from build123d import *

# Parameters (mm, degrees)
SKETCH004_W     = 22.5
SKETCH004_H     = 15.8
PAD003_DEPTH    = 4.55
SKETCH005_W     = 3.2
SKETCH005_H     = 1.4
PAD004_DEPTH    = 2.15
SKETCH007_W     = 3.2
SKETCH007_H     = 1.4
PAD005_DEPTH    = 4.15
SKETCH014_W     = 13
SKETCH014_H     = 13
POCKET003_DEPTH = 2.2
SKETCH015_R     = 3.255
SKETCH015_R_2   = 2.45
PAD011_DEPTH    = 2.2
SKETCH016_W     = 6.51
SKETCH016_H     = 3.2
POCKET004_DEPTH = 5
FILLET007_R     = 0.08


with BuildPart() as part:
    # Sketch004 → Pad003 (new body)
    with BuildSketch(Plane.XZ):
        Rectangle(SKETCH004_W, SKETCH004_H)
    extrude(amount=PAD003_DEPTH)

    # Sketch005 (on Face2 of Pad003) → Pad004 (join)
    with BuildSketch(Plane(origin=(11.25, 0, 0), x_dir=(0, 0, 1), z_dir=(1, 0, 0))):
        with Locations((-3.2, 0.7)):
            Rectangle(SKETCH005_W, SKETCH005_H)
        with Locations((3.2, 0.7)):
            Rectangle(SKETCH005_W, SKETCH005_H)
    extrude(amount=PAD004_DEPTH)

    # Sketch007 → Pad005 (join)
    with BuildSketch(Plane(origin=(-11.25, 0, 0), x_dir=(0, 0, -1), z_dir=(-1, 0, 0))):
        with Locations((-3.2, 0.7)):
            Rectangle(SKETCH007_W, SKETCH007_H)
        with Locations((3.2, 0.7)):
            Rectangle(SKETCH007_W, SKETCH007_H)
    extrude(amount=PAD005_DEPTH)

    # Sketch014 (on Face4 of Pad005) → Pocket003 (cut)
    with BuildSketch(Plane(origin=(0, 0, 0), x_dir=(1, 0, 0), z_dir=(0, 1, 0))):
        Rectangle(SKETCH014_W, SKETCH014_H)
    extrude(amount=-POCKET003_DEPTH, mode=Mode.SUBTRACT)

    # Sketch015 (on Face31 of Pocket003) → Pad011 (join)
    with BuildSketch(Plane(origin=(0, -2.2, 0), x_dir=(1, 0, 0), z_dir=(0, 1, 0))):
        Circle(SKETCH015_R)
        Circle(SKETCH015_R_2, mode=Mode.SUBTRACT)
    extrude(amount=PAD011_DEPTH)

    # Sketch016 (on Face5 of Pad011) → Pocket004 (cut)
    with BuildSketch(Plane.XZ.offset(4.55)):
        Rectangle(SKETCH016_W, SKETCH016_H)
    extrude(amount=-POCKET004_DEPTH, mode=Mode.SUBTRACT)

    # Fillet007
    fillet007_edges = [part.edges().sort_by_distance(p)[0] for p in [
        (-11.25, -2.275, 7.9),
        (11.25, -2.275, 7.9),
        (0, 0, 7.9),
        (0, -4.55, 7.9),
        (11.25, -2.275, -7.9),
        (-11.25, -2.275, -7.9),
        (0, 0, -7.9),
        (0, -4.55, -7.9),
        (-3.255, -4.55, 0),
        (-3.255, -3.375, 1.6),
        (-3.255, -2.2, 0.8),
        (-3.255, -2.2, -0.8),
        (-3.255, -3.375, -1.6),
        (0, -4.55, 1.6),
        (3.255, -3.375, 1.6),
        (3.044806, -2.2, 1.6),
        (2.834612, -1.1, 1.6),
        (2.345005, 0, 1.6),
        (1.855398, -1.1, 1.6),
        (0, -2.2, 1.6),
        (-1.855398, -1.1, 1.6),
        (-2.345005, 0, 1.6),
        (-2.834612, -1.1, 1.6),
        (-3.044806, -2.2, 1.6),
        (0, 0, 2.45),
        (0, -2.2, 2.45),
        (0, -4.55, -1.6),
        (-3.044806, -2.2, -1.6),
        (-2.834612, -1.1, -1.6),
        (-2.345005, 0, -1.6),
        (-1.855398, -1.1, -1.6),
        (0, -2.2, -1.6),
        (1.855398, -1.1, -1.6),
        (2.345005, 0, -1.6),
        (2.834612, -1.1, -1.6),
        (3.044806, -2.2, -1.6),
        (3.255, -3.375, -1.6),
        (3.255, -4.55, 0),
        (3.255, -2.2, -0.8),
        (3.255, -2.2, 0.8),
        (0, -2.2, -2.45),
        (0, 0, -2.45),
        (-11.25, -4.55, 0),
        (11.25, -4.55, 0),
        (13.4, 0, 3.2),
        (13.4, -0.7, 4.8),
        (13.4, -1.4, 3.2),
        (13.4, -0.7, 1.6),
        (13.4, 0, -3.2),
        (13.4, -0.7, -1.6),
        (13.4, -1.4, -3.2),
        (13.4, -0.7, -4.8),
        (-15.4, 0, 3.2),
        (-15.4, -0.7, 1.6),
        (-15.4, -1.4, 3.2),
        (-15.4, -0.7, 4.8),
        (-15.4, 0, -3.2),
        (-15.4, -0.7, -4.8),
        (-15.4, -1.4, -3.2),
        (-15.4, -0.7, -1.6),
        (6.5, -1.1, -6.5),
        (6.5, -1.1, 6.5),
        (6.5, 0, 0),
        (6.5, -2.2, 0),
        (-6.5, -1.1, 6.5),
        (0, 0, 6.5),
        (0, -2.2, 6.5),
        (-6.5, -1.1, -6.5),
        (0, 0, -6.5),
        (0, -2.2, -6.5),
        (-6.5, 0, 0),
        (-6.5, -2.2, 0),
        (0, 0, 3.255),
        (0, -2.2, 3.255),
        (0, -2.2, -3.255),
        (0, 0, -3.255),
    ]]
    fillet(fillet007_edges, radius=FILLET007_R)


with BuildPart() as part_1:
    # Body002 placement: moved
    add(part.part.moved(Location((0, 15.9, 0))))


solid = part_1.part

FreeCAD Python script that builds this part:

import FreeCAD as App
import Part
import Sketcher
Q = App.Units.Quantity


def edges_at(feature, points):
    """Names of the edges that pass closest to the given points."""
    edges = feature.Shape.Edges
    near = lambda p: min(range(len(edges)), key=lambda i: edges[i].distToShape(Part.Vertex(*p))[0])
    return sorted({f"Edge{near(p) + 1}" for p in points})


def add_polygon(sketch, points):
    """Adds a closed chain of lines whose ends are joined by coincident constraints."""
    first, n = sketch.GeometryCount, len(points)
    for a, b in zip(points, points[1:] + points[:1]):
        sketch.addGeometry(Part.LineSegment(App.Vector(*a, 0), App.Vector(*b, 0)), False)
    for i in range(n):
        sketch.addConstraint(Sketcher.Constraint("Coincident", first + i, 2, first + (i + 1) % n, 1))

doc = App.newDocument("Part")
body = doc.addObject("PartDesign::Body", "Body")

# Sketch on XZ plane
sketch1 = body.newObject("Sketcher::SketchObject", "Sketch")
sketch1.AttachmentSupport = (doc.getObject("XZ_Plane"), [""])
sketch1.MapMode = "FlatFace"
add_polygon(sketch1, [(-11.25, 7.9), (-11.25, -7.9), (11.25, -7.9), (11.25, 7.9)])  # lines 0-3
sketch1.addConstraint([
    Sketcher.Constraint("Vertical", 0),
    Sketcher.Constraint("Horizontal", 1),
    Sketcher.Constraint("Vertical", 2),
    Sketcher.Constraint("Horizontal", 3),
    Sketcher.Constraint("Symmetric", 0, 2, 2, 2, -1, 1),
    Sketcher.Constraint("DistanceX", 1, 1, 1, 2, Q("22.5 mm")),
    Sketcher.Constraint("DistanceY", 0, 2, 0, 1, Q("15.8 mm")),
])
pad1 = body.newObject("PartDesign::Pad", "Pad")
pad1.Profile = sketch1
pad1.Length = 4.55

# Sketch on YZ plane
sketch2 = body.newObject("Sketcher::SketchObject", "Sketch001")
sketch2.AttachmentSupport = (doc.getObject("YZ_Plane"), [""])
sketch2.MapMode = "FlatFace"
sketch2.AttachmentOffset = App.Placement(App.Vector(0, 0, 11.25), App.Rotation())
add_polygon(sketch2, [(-1.4, -4.8), (0, -4.8), (0, -1.6), (-1.4, -1.6)])  # lines 0-3
add_polygon(sketch2, [(-1.4, 1.6), (0, 1.6), (0, 4.8), (-1.4, 4.8)])  # lines 4-7
sketch2.addConstraint([
    Sketcher.Constraint("Horizontal", 0),
    Sketcher.Constraint("Vertical", 1),
    Sketcher.Constraint("Horizontal", 2),
    Sketcher.Constraint("Vertical", 3),
    Sketcher.Constraint("Horizontal", 4),
    Sketcher.Constraint("Vertical", 5),
    Sketcher.Constraint("Horizontal", 6),
    Sketcher.Constraint("Vertical", 7),
    Sketcher.Constraint("Symmetric", 1, 2, 4, 2, -1, 1),
    Sketcher.Constraint("Symmetric", 0, 2, 5, 2, -1),
    Sketcher.Constraint("Vertical", 3, 2, 6, 2),
    Sketcher.Constraint("DistanceX", 0, 1, 0, 2, Q("1.4 mm")),
    Sketcher.Constraint("DistanceY", 1, 1, 1, 2, Q("3.2 mm")),
    Sketcher.Constraint("DistanceY", 0, 2, -1, 1, Q("4.8 mm")),
])
pad2 = body.newObject("PartDesign::Pad", "Pad001")
pad2.Profile = sketch2
pad2.Length = 2.15

# Sketch on YZ plane
sketch3 = body.newObject("Sketcher::SketchObject", "Sketch002")
sketch3.AttachmentSupport = (doc.getObject("YZ_Plane"), [""])
sketch3.MapMode = "FlatFace"
sketch3.AttachmentOffset = App.Placement(App.Vector(0, 0, -11.25), App.Rotation())
add_polygon(sketch3, [(-1.4, 4.8), (0, 4.8), (0, 1.6), (-1.4, 1.6)])  # lines 0-3
add_polygon(sketch3, [(-1.4, -1.6), (0, -1.6), (0, -4.8), (-1.4, -4.8)])  # lines 4-7
sketch3.addConstraint([
    Sketcher.Constraint("Horizontal", 0),
    Sketcher.Constraint("Vertical", 1),
    Sketcher.Constraint("Horizontal", 2),
    Sketcher.Constraint("Vertical", 3),
    Sketcher.Constraint("Horizontal", 4),
    Sketcher.Constraint("Vertical", 5),
    Sketcher.Constraint("Horizontal", 6),
    Sketcher.Constraint("Vertical", 7),
    Sketcher.Constraint("Symmetric", 1, 2, 4, 2, -1, 1),
    Sketcher.Constraint("Symmetric", 0, 2, 5, 2, -1),
    Sketcher.Constraint("Vertical", 3, 2, 6, 2),
    Sketcher.Constraint("DistanceX", 0, 1, 0, 2, Q("1.4 mm")),
    Sketcher.Constraint("DistanceY", 1, 2, 1, 1, Q("3.2 mm")),
    Sketcher.Constraint("DistanceY", -1, 1, 0, 2, Q("4.8 mm")),
])
pad3 = body.newObject("PartDesign::Pad", "Pad002")
pad3.Profile = sketch3
pad3.Length = 4.15
pad3.Reversed = True

# Sketch on XZ plane
sketch4 = body.newObject("Sketcher::SketchObject", "Sketch003")
sketch4.AttachmentSupport = (doc.getObject("XZ_Plane"), [""])
sketch4.MapMode = "FlatFace"
add_polygon(sketch4, [(-6.5, -6.5), (-6.5, 6.5), (6.5, 6.5), (6.5, -6.5)])  # lines 0-3
sketch4.addConstraint([
    Sketcher.Constraint("Vertical", 0),
    Sketcher.Constraint("Horizontal", 1),
    Sketcher.Constraint("Vertical", 2),
    Sketcher.Constraint("Horizontal", 3),
    Sketcher.Constraint("Symmetric", 0, 2, 2, 2, -1, 1),
    Sketcher.Constraint("Equal", 3, 0),
    Sketcher.Constraint("DistanceX", 1, 1, 1, 2, Q("13 mm")),
])
pocket1 = body.newObject("PartDesign::Pocket", "Pocket")
pocket1.Profile = sketch4
pocket1.Length = 2.2
pocket1.Reversed = True

# Sketch on XZ plane
sketch5 = body.newObject("Sketcher::SketchObject", "Sketch004")
sketch5.AttachmentSupport = (doc.getObject("XZ_Plane"), [""])
sketch5.MapMode = "FlatFace"
sketch5.AttachmentOffset = App.Placement(App.Vector(0, 0, 2.2), App.Rotation())
sketch5.addGeometry([
    Part.Circle(App.Vector(0, 0, 0), App.Vector(0, 0, 1), 3.255),
    Part.Circle(App.Vector(0, 0, 0), App.Vector(0, 0, 1), 2.45),
], False)
sketch5.addConstraint([
    Sketcher.Constraint("Coincident", 0, 3, -1, 1),
    Sketcher.Constraint("Coincident", 1, 3, -1, 1),
    Sketcher.Constraint("Diameter", 1, Q("4.9 mm")),
    Sketcher.Constraint("Diameter", 0, Q("6.51 mm")),
])
pad4 = body.newObject("PartDesign::Pad", "Pad003")
pad4.Profile = sketch5
pad4.Length = 2.2
pad4.Reversed = True

# Sketch on XZ plane
sketch6 = body.newObject("Sketcher::SketchObject", "Sketch005")
sketch6.AttachmentSupport = (doc.getObject("XZ_Plane"), [""])
sketch6.MapMode = "FlatFace"
sketch6.AttachmentOffset = App.Placement(App.Vector(0, 0, 4.55), App.Rotation())
add_polygon(sketch6, [(-3.255, 1.6), (-3.255, -1.6), (3.255, -1.6), (3.255, 1.6)])  # lines 0-3
sketch6.addConstraint([
    Sketcher.Constraint("Vertical", 0),
    Sketcher.Constraint("Horizontal", 1),
    Sketcher.Constraint("Vertical", 2),
    Sketcher.Constraint("Horizontal", 3),
    Sketcher.Constraint("Symmetric", 0, 2, 2, 2, -1, 1),
    Sketcher.Constraint("DistanceY", 0, 2, 0, 1, Q("3.2 mm")),
    Sketcher.Constraint("DistanceX", 1, 1, 1, 2, Q("6.51 mm")),
])
pocket2 = body.newObject("PartDesign::Pocket", "Pocket001")
pocket2.Profile = sketch6
pocket2.Length = 5
doc.recompute()

fillet = body.newObject("PartDesign::Fillet", "Fillet")
fillet.Base = (pocket2, edges_at(pocket2, [
    (-11.25, -2.275, 7.9),
    (11.25, -2.275, 7.9),
    (0, 0, 7.9),
    (0, -4.55, 7.9),
    (11.25, -2.275, -7.9),
    (-11.25, -2.275, -7.9),
    (0, 0, -7.9),
    (0, -4.55, -7.9),
    (-3.255, -4.55, 0),
    (-3.255, -3.375, 1.6),
    (-3.255, -2.2, 0),
    (-3.255, -2.2, 0),
    (-3.255, -3.375, -1.6),
    (0, -4.55, 1.6),
    (3.255, -3.375, 1.6),
    (3.045, -2.2, 1.6),
    (2.835, -1.1, 1.6),
    (2.345, 0, 1.6),
    (1.855, -1.1, 1.6),
    (0, -2.2, 1.6),
    (-1.855, -1.1, 1.6),
    (-2.345, 0, 1.6),
    (-2.835, -1.1, 1.6),
    (-3.045, -2.2, 1.6),
    (0, 0, 2.45),
    (0, -2.2, 2.45),
    (0, -4.55, -1.6),
    (-3.045, -2.2, -1.6),
    (-2.835, -1.1, -1.6),
    (-2.345, 0, -1.6),
    (-1.855, -1.1, -1.6),
    (0, -2.2, -1.6),
    (1.855, -1.1, -1.6),
    (2.345, 0, -1.6),
    (2.835, -1.1, -1.6),
    (3.045, -2.2, -1.6),
    (3.255, -3.375, -1.6),
    (3.255, -4.55, 0),
    (3.255, -2.2, 0),
    (3.255, -2.2, 0),
    (0, -2.2, -2.45),
    (0, 0, -2.45),
    (-11.25, -4.55, 0),
    (11.25, -4.55, 0),
    (13.4, 0, 3.2),
    (13.4, -0.7, 4.8),
    (13.4, -1.4, 3.2),
    (13.4, -0.7, 1.6),
    (13.4, 0, -3.2),
    (13.4, -0.7, -1.6),
    (13.4, -1.4, -3.2),
    (13.4, -0.7, -4.8),
    (-15.4, 0, 3.2),
    (-15.4, -0.7, 1.6),
    (-15.4, -1.4, 3.2),
    (-15.4, -0.7, 4.8),
    (-15.4, 0, -3.2),
    (-15.4, -0.7, -4.8),
    (-15.4, -1.4, -3.2),
    (-15.4, -0.7, -1.6),
    (6.5, -1.1, -6.5),
    (6.5, -1.1, 6.5),
    (6.5, 0, 0),
    (6.5, -2.2, 0),
    (-6.5, -1.1, 6.5),
    (0, 0, 6.5),
    (0, -2.2, 6.5),
    (-6.5, -1.1, -6.5),
    (0, 0, -6.5),
    (0, -2.2, -6.5),
    (-6.5, 0, 0),
    (-6.5, -2.2, 0),
    (0, 0, 3.255),
    (0, -2.2, 3.255),
    (0, -2.2, -3.255),
    (0, 0, -3.255),
]))
fillet.Radius = 0.08
body2 = doc.addObject("PartDesign::Body", "Body001")
doc.recompute()

body.Placement = App.Placement(App.Vector(0, 15.9, 0), App.Rotation(App.Vector(0, 0, 1), 0))
boolean = body2.newObject("PartDesign::Boolean", "Boolean")
boolean.Type = "Fuse"
boolean.addObjects([body])

doc.recompute()
